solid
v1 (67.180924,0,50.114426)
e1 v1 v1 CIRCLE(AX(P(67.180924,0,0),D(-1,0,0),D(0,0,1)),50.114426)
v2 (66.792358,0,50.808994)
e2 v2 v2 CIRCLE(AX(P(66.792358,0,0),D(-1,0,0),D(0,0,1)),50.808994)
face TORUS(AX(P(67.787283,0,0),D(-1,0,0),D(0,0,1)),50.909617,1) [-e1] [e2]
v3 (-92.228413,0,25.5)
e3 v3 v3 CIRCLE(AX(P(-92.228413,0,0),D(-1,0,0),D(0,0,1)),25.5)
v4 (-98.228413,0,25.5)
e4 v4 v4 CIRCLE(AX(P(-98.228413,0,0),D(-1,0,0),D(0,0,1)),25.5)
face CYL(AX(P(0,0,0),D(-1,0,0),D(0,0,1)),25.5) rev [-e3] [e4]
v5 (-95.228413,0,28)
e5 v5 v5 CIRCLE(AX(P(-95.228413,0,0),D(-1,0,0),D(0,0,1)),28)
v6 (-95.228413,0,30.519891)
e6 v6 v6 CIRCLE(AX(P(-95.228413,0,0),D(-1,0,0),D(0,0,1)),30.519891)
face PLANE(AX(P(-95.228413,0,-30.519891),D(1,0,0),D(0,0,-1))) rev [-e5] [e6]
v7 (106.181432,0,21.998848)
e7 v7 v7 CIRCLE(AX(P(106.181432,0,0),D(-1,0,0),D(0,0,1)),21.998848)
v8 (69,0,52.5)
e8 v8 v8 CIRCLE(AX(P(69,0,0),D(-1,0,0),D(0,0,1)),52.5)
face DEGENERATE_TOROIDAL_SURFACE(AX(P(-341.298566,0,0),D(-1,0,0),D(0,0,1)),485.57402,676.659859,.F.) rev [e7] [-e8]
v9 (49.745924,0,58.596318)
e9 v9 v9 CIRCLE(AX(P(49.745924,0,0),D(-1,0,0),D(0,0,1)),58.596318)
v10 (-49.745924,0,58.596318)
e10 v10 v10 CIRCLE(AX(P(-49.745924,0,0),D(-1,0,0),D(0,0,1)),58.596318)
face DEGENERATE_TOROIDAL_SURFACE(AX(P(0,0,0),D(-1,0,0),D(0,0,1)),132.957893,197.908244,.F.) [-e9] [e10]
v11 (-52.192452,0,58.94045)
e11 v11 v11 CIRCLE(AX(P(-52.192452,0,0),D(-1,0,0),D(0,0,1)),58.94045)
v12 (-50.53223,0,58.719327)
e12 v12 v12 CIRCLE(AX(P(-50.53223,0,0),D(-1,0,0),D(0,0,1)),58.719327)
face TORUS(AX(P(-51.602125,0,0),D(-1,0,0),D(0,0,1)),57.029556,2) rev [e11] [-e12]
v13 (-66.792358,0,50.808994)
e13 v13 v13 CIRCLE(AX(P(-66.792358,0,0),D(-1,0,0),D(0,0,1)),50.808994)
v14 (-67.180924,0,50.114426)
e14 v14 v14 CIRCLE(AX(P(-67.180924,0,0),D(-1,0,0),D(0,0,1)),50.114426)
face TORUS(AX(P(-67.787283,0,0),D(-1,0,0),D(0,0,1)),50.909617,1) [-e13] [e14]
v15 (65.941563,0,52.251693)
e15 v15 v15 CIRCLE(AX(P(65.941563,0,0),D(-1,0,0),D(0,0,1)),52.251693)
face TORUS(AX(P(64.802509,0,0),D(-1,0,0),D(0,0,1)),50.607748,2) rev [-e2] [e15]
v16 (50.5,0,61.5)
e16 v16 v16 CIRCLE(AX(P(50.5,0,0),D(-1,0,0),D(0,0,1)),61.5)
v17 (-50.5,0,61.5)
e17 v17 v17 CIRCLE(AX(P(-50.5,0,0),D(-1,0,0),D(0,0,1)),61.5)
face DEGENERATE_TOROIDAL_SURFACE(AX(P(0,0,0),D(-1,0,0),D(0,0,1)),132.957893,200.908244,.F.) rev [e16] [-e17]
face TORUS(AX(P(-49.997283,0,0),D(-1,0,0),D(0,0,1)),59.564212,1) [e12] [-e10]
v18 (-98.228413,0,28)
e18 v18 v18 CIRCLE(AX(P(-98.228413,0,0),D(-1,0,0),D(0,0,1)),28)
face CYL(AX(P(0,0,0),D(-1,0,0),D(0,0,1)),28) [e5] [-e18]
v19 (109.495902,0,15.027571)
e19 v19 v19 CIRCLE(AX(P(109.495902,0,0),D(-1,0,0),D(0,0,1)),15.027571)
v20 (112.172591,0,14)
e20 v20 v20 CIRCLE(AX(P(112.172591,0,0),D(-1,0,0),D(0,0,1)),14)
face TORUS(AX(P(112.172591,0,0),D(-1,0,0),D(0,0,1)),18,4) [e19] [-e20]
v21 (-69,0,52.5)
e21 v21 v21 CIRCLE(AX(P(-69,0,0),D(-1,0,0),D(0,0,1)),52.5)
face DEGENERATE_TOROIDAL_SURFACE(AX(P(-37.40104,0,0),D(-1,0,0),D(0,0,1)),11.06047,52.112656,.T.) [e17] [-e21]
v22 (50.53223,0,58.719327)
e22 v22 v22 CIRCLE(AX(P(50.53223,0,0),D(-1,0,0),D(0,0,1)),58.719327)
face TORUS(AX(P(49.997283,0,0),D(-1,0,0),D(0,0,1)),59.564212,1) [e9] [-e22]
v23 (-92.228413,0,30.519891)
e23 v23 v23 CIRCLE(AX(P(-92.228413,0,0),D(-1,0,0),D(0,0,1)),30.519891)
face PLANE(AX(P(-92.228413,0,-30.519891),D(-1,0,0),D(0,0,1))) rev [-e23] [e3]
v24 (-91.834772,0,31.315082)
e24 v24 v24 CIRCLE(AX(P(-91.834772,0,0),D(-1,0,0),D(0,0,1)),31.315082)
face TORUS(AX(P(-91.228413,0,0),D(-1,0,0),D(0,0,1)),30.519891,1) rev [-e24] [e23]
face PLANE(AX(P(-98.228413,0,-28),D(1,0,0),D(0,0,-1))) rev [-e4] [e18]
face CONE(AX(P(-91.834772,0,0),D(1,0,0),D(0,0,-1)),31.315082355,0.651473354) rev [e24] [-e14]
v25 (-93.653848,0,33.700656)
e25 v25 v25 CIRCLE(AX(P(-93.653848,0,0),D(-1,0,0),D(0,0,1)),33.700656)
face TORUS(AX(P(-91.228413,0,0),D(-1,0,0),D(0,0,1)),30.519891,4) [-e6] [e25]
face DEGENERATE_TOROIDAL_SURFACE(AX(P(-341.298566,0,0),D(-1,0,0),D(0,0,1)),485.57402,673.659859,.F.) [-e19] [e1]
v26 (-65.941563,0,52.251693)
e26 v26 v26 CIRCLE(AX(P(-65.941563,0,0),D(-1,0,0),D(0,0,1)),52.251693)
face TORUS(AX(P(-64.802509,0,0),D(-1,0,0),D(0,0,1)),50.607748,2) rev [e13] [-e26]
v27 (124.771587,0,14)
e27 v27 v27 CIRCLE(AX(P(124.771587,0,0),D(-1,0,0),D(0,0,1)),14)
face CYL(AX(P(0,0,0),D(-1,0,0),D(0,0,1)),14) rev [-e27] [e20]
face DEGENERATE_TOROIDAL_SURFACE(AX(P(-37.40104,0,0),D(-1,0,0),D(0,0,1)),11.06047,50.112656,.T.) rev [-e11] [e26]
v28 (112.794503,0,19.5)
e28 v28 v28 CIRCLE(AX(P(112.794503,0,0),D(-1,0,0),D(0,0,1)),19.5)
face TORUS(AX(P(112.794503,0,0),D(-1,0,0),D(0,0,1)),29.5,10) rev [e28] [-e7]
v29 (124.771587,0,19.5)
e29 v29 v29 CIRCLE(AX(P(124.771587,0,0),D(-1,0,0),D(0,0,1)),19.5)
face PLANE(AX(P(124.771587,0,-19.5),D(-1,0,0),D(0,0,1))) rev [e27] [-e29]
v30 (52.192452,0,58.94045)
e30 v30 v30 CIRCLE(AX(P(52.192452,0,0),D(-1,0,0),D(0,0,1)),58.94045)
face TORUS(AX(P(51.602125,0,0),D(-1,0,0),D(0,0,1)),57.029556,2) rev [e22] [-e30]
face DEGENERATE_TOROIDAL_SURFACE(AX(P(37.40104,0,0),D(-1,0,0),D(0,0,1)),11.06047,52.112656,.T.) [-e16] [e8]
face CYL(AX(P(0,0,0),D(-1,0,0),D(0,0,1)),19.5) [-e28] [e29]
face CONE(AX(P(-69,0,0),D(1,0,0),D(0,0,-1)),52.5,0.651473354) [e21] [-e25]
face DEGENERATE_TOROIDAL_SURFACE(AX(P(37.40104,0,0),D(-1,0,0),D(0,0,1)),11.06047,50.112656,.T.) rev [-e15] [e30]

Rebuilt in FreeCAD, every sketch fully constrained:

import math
import FreeCAD as App
import Part
import Sketcher

doc = App.newDocument("Part")
body = doc.addObject("PartDesign::Body", "Body")

# Sketch on XZ plane
sketch1 = doc.addObject("Sketcher::SketchObject", "Sketch")
body.addObject(sketch1)
sketch1.AttachmentSupport = (doc.XZ_Plane, [""])
sketch1.MapMode = "FlatFace"
sketch1.addGeometry(Part.LineSegment(App.Vector(-69, -52.5, 0), App.Vector(-93.7, -33.7, 0)), False)
sketch1.addGeometry(Part.ArcOfCircle(Part.Circle(App.Vector(-91.2, -30.5, 0), App.Vector(0, 0, 1), 4), math.radians(180), math.radians(233)), False)
sketch1.addGeometry(Part.LineSegment(App.Vector(-95.2, -30.5, 0), App.Vector(-95.2, -28, 0)), False)
sketch1.addGeometry(Part.LineSegment(App.Vector(-95.2, -28, 0), App.Vector(-98.2, -28, 0)), False)
sketch1.addGeometry(Part.LineSegment(App.Vector(-98.2, -28, 0), App.Vector(-98.2, -25.5, 0)), False)
sketch1.addGeometry(Part.LineSegment(App.Vector(-98.2, -25.5, 0), App.Vector(-92.2, -25.5, 0)), False)
sketch1.addGeometry(Part.LineSegment(App.Vector(-92.2, -25.5, 0), App.Vector(-92.2, -30.5, 0)), False)
sketch1.addGeometry(Part.ArcOfCircle(Part.Circle(App.Vector(-91.2, -30.5, 0), App.Vector(0, 0, 1), 1), math.radians(180), math.radians(233)), False)
sketch1.addGeometry(Part.LineSegment(App.Vector(-91.8, -31.3, 0), App.Vector(-67.2, -50.1, 0)), False)
sketch1.addGeometry(Part.ArcOfCircle(Part.Circle(App.Vector(-67.8, -50.9, 0), App.Vector(0, 0, 1), 1), math.radians(6), math.radians(53)), False)
sketch1.addGeometry(Part.ArcOfCircle(Part.Circle(App.Vector(-64.8, -50.6, 0), App.Vector(0, 0, 1), 2), math.radians(-174), math.radians(-125)), False)
sketch1.addGeometry(Part.ArcOfCircle(Part.Circle(App.Vector(-37.4, -11.1, 0), App.Vector(0, 0, 1), 50.1), math.radians(-124.72), math.radians(-107.17)), False)
sketch1.addGeometry(Part.ArcOfCircle(Part.Circle(App.Vector(-51.6, -57, 0), App.Vector(0, 0, 1), 2), math.radians(-107), math.radians(-58)), False)
sketch1.addGeometry(Part.ArcOfCircle(Part.Circle(App.Vector(-50, -59.6, 0), App.Vector(0, 0, 1), 1), math.radians(75), math.radians(122)), False)
sketch1.addGeometry(Part.ArcOfCircle(Part.Circle(App.Vector(0, 133, 0), App.Vector(0, 0, 1), 197.9), math.radians(-105), math.radians(-75)), False)
sketch1.addGeometry(Part.ArcOfCircle(Part.Circle(App.Vector(50, -59.6, 0), App.Vector(0, 0, 1), 1), math.radians(58), math.radians(105)), False)
sketch1.addGeometry(Part.ArcOfCircle(Part.Circle(App.Vector(51.6, -57, 0), App.Vector(0, 0, 1), 2), math.radians(-122), math.radians(-73)), False)
sketch1.addGeometry(Part.ArcOfCircle(Part.Circle(App.Vector(37.4, -11.1, 0), App.Vector(0, 0, 1), 50.1), math.radians(-72.83), math.radians(-55.28)), False)
sketch1.addGeometry(Part.ArcOfCircle(Part.Circle(App.Vector(64.8, -50.6, 0), App.Vector(0, 0, 1), 2), math.radians(-55), math.radians(-6)), False)
sketch1.addGeometry(Part.ArcOfCircle(Part.Circle(App.Vector(67.8, -50.9, 0), App.Vector(0, 0, 1), 1), math.radians(127), math.radians(174)), False)
sketch1.addGeometry(Part.ArcOfCircle(Part.Circle(App.Vector(-341.3, 485.6, 0), App.Vector(0, 0, 1), 673.7), math.radians(-52.67), math.radians(-48)), False)
sketch1.addGeometry(Part.ArcOfCircle(Part.Circle(App.Vector(112.2, -18, 0), App.Vector(0, 0, 1), 4), math.radians(90), math.radians(132)), False)
sketch1.addGeometry(Part.LineSegment(App.Vector(112.2, -14, 0), App.Vector(124.8, -14, 0)), False)
sketch1.addGeometry(Part.LineSegment(App.Vector(124.8, -14, 0), App.Vector(124.8, -19.5, 0)), False)
sketch1.addGeometry(Part.LineSegment(App.Vector(124.8, -19.5, 0), App.Vector(112.8, -19.5, 0)), False)
sketch1.addGeometry(Part.ArcOfCircle(Part.Circle(App.Vector(112.8, -29.5, 0), App.Vector(0, 0, 1), 10), math.radians(90), math.radians(131)), False)
sketch1.addGeometry(Part.ArcOfCircle(Part.Circle(App.Vector(-341.3, 485.6, 0), App.Vector(0, 0, 1), 676.7), math.radians(-52.67), math.radians(-48.6)), False)
sketch1.addGeometry(Part.ArcOfCircle(Part.Circle(App.Vector(37.4, -11.1, 0), App.Vector(0, 0, 1), 52.1), math.radians(-75), math.radians(-53)), False)
sketch1.addGeometry(Part.ArcOfCircle(Part.Circle(App.Vector(0, 133, 0), App.Vector(0, 0, 1), 200.9), math.radians(-105), math.radians(-75)), False)
sketch1.addGeometry(Part.ArcOfCircle(Part.Circle(App.Vector(-37.4, -11.1, 0), App.Vector(0, 0, 1), 52.1), math.radians(-127), math.radians(-105)), False)
sketch1.addConstraint(Sketcher.Constraint("Tangent", 0, 2, 1, 2))
sketch1.addConstraint(Sketcher.Constraint("Tangent", 1, 1, 2, 1))
sketch1.addConstraint(Sketcher.Constraint("Coincident", 2, 2, 3, 1))
sketch1.addConstraint(Sketcher.Constraint("Coincident", 3, 2, 4, 1))
sketch1.addConstraint(Sketcher.Constraint("Coincident", 4, 2, 5, 1))
sketch1.addConstraint(Sketcher.Constraint("Coincident", 5, 2, 6, 1))
sketch1.addConstraint(Sketcher.Constraint("Tangent", 6, 2, 7, 1))
sketch1.addConstraint(Sketcher.Constraint("Tangent", 7, 2, 8, 1))
sketch1.addConstraint(Sketcher.Constraint("Tangent", 8, 2, 9, 2))
sketch1.addConstraint(Sketcher.Constraint("Tangent", 9, 1, 10, 1))
sketch1.addConstraint(Sketcher.Constraint("Tangent", 10, 2, 11, 1))
sketch1.addConstraint(Sketcher.Constraint("Tangent", 11, 2, 12, 1))
sketch1.addConstraint(Sketcher.Constraint("Tangent", 12, 2, 13, 2))
sketch1.addConstraint(Sketcher.Constraint("Tangent", 13, 1, 14, 1))
sketch1.addConstraint(Sketcher.Constraint("Tangent", 14, 2, 15, 2))
sketch1.addConstraint(Sketcher.Constraint("Tangent", 15, 1, 16, 1))
sketch1.addConstraint(Sketcher.Constraint("Tangent", 16, 2, 17, 1))
sketch1.addConstraint(Sketcher.Constraint("Tangent", 17, 2, 18, 1))
sketch1.addConstraint(Sketcher.Constraint("Tangent", 18, 2, 19, 2))
sketch1.addConstraint(Sketcher.Constraint("Tangent", 19, 1, 20, 1))
sketch1.addConstraint(Sketcher.Constraint("Tangent", 20, 2, 21, 2))
sketch1.addConstraint(Sketcher.Constraint("Tangent", 21, 1, 22, 1))
sketch1.addConstraint(Sketcher.Constraint("Coincident", 22, 2, 23, 1))
sketch1.addConstraint(Sketcher.Constraint("Coincident", 23, 2, 24, 1))
sketch1.addConstraint(Sketcher.Constraint("Tangent", 24, 2, 25, 1))
sketch1.addConstraint(Sketcher.Constraint("Tangent", 25, 2, 26, 2))
sketch1.addConstraint(Sketcher.Constraint("Tangent", 26, 1, 27, 2))
sketch1.addConstraint(Sketcher.Constraint("Tangent", 27, 1, 28, 2))
sketch1.addConstraint(Sketcher.Constraint("Tangent", 28, 1, 29, 2))
sketch1.addConstraint(Sketcher.Constraint("Tangent", 29, 1, 0, 1))
sketch1.addConstraint(Sketcher.Constraint("Vertical", 2))
sketch1.addConstraint(Sketcher.Constraint("Horizontal", 3))
sketch1.addConstraint(Sketcher.Constraint("Vertical", 4))
sketch1.addConstraint(Sketcher.Constraint("Horizontal", 5))
sketch1.addConstraint(Sketcher.Constraint("Vertical", 6))
sketch1.addConstraint(Sketcher.Constraint("Horizontal", 22))
sketch1.addConstraint(Sketcher.Constraint("Vertical", 23))
sketch1.addConstraint(Sketcher.Constraint("Horizontal", 24))
sketch1.addConstraint(Sketcher.Constraint("Coincident", 7, 3, 1, 3))
sketch1.addConstraint(Sketcher.Constraint("Coincident", 26, 3, 20, 3))
sketch1.addConstraint(Sketcher.Constraint("Coincident", 27, 3, 17, 3))
sketch1.addConstraint(Sketcher.Constraint("Coincident", 28, 3, 14, 3))
sketch1.addConstraint(Sketcher.Constraint("Coincident", 29, 3, 11, 3))
sketch1.addConstraint(Sketcher.Constraint("Equal", 7, 9))
sketch1.addConstraint(Sketcher.Constraint("Equal", 10, 12))
sketch1.addConstraint(Sketcher.Constraint("Equal", 9, 13))
sketch1.addConstraint(Sketcher.Constraint("Equal", 13, 15))
sketch1.addConstraint(Sketcher.Constraint("Equal", 12, 16))
sketch1.addConstraint(Sketcher.Constraint("Equal", 11, 17))
sketch1.addConstraint(Sketcher.Constraint("Equal", 16, 18))
sketch1.addConstraint(Sketcher.Constraint("Equal", 15, 19))
sketch1.addConstraint(Sketcher.Constraint("Equal", 1, 21))
sketch1.addConstraint(Sketcher.Constraint("Equal", 27, 29))
sketch1.addConstraint(Sketcher.Constraint("Symmetric", 13, 3, 15, 3, -2))
sketch1.addConstraint(Sketcher.Constraint("Symmetric", 10, 3, 18, 3, -2))
sketch1.addConstraint(Sketcher.Constraint("Symmetric", 8, 2, 19, 1, -2))
sketch1.addConstraint(Sketcher.Constraint("Parallel", 0, 8))
sketch1.addConstraint(Sketcher.Constraint("Equal", 0, 8))
sketch1.addConstraint(Sketcher.Constraint("Radius", 1, 4.0))
sketch1.addConstraint(Sketcher.Constraint("Radius", 7, 1.0))
sketch1.addConstraint(Sketcher.Constraint("Radius", 10, 2.0))
sketch1.addConstraint(Sketcher.Constraint("Radius", 25, 10.0))
sketch1.addConstraint(Sketcher.Constraint("DistanceX", 3, 2, 3, 1, 3.0))
sketch1.addConstraint(Sketcher.Constraint("DistanceY", 4, 1, 4, 2, 2.5))
sketch1.addConstraint(Sketcher.Constraint("DistanceY", 23, 2, 23, 1, 5.5))
sketch1.addConstraint(Sketcher.Constraint("DistanceY", 21, 3, -1, 1, 18.0))
sketch1.addConstraint(Sketcher.Constraint("DistanceY", 2, 2, -1, 1, 28.0))
sketch1.addConstraint(Sketcher.Constraint("DistanceX", 29, 1, -1, 1, 69.0))
sketch1.addConstraint(Sketcher.Constraint("DistanceX", -1, 1, 27, 1, 50.5))
sketch1.addConstraint(Sketcher.Constraint("DistanceY", 27, 1, -1, 1, 61.5))
sketch1.addConstraint(Sketcher.Constraint("Radius", 20, 673.659859))
sketch1.addConstraint(Sketcher.Constraint("DistanceX", 9, 3, 13, 3, 17.79))
sketch1.addConstraint(Sketcher.Constraint("Radius", 11, 50.112656))
sketch1.addConstraint(Sketcher.Constraint("Radius", 14, 197.908244))
sketch1.addConstraint(Sketcher.Constraint("Radius", 27, 52.112656))
sketch1.addConstraint(Sketcher.Constraint("Radius", 28, 200.908244))
sketch1.addConstraint(Sketcher.Constraint("DistanceY", 2, 1, 2, 2, 2.519891))
sketch1.addConstraint(Sketcher.Constraint("DistanceX", 22, 1, 22, 2, 12.598996))
revolution = doc.addObject("PartDesign::Revolution", "Revolution")
body.addObject(revolution)
revolution.Profile = sketch1
revolution.ReferenceAxis = (sketch1, ["H_Axis"])
revolution.Angle = 360

doc.recompute()
